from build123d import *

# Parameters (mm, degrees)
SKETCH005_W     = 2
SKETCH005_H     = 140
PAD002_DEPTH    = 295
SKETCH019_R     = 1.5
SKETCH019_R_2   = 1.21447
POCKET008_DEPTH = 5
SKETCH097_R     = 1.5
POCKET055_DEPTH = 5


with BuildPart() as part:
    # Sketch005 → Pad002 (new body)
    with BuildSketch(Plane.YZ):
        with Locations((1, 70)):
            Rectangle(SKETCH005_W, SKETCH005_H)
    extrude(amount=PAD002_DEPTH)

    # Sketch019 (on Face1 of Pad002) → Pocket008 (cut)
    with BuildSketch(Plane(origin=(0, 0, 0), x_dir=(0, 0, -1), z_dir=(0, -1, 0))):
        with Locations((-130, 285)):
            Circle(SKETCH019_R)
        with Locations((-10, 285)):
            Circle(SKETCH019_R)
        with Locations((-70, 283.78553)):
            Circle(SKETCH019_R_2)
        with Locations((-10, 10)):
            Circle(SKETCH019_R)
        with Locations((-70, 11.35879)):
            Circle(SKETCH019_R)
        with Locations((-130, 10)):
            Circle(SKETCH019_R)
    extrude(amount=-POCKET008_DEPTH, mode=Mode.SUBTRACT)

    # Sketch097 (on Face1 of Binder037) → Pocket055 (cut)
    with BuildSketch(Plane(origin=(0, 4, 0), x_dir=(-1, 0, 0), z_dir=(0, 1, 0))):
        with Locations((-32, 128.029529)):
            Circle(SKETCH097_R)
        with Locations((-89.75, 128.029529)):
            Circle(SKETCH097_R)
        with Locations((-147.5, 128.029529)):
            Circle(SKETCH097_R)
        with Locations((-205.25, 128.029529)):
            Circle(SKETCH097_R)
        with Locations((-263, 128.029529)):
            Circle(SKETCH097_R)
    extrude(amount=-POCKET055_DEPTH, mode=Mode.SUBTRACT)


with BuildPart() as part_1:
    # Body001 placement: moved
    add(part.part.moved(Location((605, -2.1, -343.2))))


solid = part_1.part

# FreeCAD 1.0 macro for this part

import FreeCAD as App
import Part
import Sketcher

V = App.Vector


def add_polygon(sketch, points):
    """Adds a closed chain of lines whose ends are joined by coincident constraints."""
    first, n = sketch.GeometryCount, len(points)
    for a, b in zip(points, points[1:] + points[:1]):
        sketch.addGeometry(Part.LineSegment(App.Vector(*a, 0), App.Vector(*b, 0)), False)
    for i in range(n):
        sketch.addConstraint(Sketcher.Constraint("Coincident", first + i, 2, first + (i + 1) % n, 1))

doc = App.newDocument("Part")
body = doc.addObject("PartDesign::Body", "Body")

sketch1 = body.newObject("Sketcher::SketchObject", "Sketch")
sketch1.AttachmentSupport = (doc.getObject("YZ_Plane"), [""])
sketch1.MapMode = "FlatFace"
add_polygon(sketch1, [(0, 140), (0, 0), (2, 0), (2, 140)])
sketch1.addConstraint(Sketcher.Constraint("Vertical", 0))
sketch1.addConstraint(Sketcher.Constraint("Horizontal", 1))
sketch1.addConstraint(Sketcher.Constraint("Vertical", 2))
sketch1.addConstraint(Sketcher.Constraint("Horizontal", 3))
sketch1.addConstraint(Sketcher.Constraint("Coincident", 0, 2, -1, 1))
sketch1.addConstraint(Sketcher.Constraint("DistanceX", 1, 1, 1, 2, 2.0))
sketch1.addConstraint(Sketcher.Constraint("DistanceY", 0, 2, 0, 1, 140.0))
pad1 = body.newObject("PartDesign::Pad", "Pad")
pad1.Profile = sketch1
pad1.Length = 295

sketch2 = body.newObject("Sketcher::SketchObject", "Sketch001")
sketch2.AttachmentSupport = (doc.getObject("XZ_Plane"), [""])
sketch2.MapMode = "FlatFace"
sketch2.addGeometry(Part.Circle(V(285, 130, 0), V(0, 0, 1), 1.5), False)
sketch2.addGeometry(Part.Circle(V(285, 10, 0), V(0, 0, 1), 1.5), False)
sketch2.addGeometry(Part.Circle(V(283.8, 70, 0), V(0, 0, 1), 1.2), False)
sketch2.addGeometry(Part.Circle(V(10, 10, 0), V(0, 0, 1), 1.5), False)
sketch2.addGeometry(Part.Circle(V(11.4, 70, 0), V(0, 0, 1), 1.5), False)
sketch2.addGeometry(Part.Circle(V(10, 130, 0), V(0, 0, 1), 1.5), False)
sketch2.addConstraint(Sketcher.Constraint("Equal", 0, 1))
sketch2.addConstraint(Sketcher.Constraint("Equal", 1, 3))
sketch2.addConstraint(Sketcher.Constraint("Equal", 3, 4))
sketch2.addConstraint(Sketcher.Constraint("Equal", 4, 5))
sketch2.addConstraint(Sketcher.Constraint("Horizontal", 1, 3, 3, 3))
sketch2.addConstraint(Sketcher.Constraint("Horizontal", 2, 3, 4, 3))
sketch2.addConstraint(Sketcher.Constraint("Horizontal", 0, 3, 5, 3))
sketch2.addConstraint(Sketcher.Constraint("Vertical", 0, 3, 1, 3))
sketch2.addConstraint(Sketcher.Constraint("Vertical", 3, 3, 5, 3))
sketch2.addConstraint(Sketcher.Constraint("Diameter", 0, 3.0))
sketch2.addConstraint(Sketcher.Constraint("DistanceX", -1, 1, 0, 3, 285.0))
sketch2.addConstraint(Sketcher.Constraint("DistanceY", -1, 1, 0, 3, 130.0))
sketch2.addConstraint(Sketcher.Constraint("DistanceY", -1, 1, 1, 3, 10.0))
sketch2.addConstraint(Sketcher.Constraint("DistanceY", -1, 1, 2, 3, 70.0))
sketch2.addConstraint(Sketcher.Constraint("DistanceX", -1, 1, 3, 3, 10.0))
sketch2.addConstraint(Sketcher.Constraint("Diameter", 2, 2.42894))
sketch2.addConstraint(Sketcher.Constraint("DistanceX", -1, 1, 2, 3, 283.78553))
sketch2.addConstraint(Sketcher.Constraint("DistanceX", -1, 1, 4, 3, 11.35879))
pocket1 = body.newObject("PartDesign::Pocket", "Pocket")
pocket1.Profile = sketch2
pocket1.Length = 5

sketch3 = body.newObject("Sketcher::SketchObject", "Sketch002")
sketch3.AttachmentSupport = (doc.getObject("XZ_Plane"), [""])
sketch3.MapMode = "FlatFace"
sketch3.AttachmentOffset = App.Placement(V(0, 0, -4), App.Rotation())
sketch3.addGeometry(Part.Circle(V(32, 128, 0), V(0, 0, 1), 1.5), False)
sketch3.addGeometry(Part.Circle(V(89.8, 128, 0), V(0, 0, 1), 1.5), False)
sketch3.addGeometry(Part.Circle(V(147.5, 128, 0), V(0, 0, 1), 1.5), False)
sketch3.addGeometry(Part.Circle(V(205.2, 128, 0), V(0, 0, 1), 1.5), False)
sketch3.addGeometry(Part.Circle(V(263, 128, 0), V(0, 0, 1), 1.5), False)
sketch3.addConstraint(Sketcher.Constraint("Equal", 0, 1))
sketch3.addConstraint(Sketcher.Constraint("Equal", 1, 2))
sketch3.addConstraint(Sketcher.Constraint("Equal", 2, 3))
sketch3.addConstraint(Sketcher.Constraint("Equal", 3, 4))
sketch3.addConstraint(Sketcher.Constraint("Horizontal", 0, 3, 1, 3))
sketch3.addConstraint(Sketcher.Constraint("Horizontal", 1, 3, 2, 3))
sketch3.addConstraint(Sketcher.Constraint("Horizontal", 2, 3, 3, 3))
sketch3.addConstraint(Sketcher.Constraint("Horizontal", 3, 3, 4, 3))
sketch3.addConstraint(Sketcher.Constraint("Diameter", 0, 3.0))
sketch3.addConstraint(Sketcher.Constraint("DistanceX", -1, 1, 0, 3, 32.0))
sketch3.addConstraint(Sketcher.Constraint("DistanceX", -1, 1, 4, 3, 263.0))
sketch3.addConstraint(Sketcher.Constraint("DistanceX", -1, 1, 2, 3, 147.5))
sketch3.addConstraint(Sketcher.Constraint("DistanceX", 1, 3, 3, 3, 115.5))
sketch3.addConstraint(Sketcher.Constraint("DistanceX", -1, 1, 1, 3, 89.75))
sketch3.addConstraint(Sketcher.Constraint("DistanceY", -1, 1, 0, 3, 128.029529))
pocket2 = body.newObject("PartDesign::Pocket", "Pocket001")
pocket2.Profile = sketch3
pocket2.Length = 5
pocket2.Reversed = True
body2 = doc.addObject("PartDesign::Body", "Body001")
doc.recompute()

body.Placement = App.Placement(V(605, -2.1, -343.2), App.Rotation(V(0, 0, 1), 0))
boolean = body2.newObject("PartDesign::Boolean", "Boolean")
boolean.Type = "Fuse"
boolean.addObjects([body])

doc.recompute()
